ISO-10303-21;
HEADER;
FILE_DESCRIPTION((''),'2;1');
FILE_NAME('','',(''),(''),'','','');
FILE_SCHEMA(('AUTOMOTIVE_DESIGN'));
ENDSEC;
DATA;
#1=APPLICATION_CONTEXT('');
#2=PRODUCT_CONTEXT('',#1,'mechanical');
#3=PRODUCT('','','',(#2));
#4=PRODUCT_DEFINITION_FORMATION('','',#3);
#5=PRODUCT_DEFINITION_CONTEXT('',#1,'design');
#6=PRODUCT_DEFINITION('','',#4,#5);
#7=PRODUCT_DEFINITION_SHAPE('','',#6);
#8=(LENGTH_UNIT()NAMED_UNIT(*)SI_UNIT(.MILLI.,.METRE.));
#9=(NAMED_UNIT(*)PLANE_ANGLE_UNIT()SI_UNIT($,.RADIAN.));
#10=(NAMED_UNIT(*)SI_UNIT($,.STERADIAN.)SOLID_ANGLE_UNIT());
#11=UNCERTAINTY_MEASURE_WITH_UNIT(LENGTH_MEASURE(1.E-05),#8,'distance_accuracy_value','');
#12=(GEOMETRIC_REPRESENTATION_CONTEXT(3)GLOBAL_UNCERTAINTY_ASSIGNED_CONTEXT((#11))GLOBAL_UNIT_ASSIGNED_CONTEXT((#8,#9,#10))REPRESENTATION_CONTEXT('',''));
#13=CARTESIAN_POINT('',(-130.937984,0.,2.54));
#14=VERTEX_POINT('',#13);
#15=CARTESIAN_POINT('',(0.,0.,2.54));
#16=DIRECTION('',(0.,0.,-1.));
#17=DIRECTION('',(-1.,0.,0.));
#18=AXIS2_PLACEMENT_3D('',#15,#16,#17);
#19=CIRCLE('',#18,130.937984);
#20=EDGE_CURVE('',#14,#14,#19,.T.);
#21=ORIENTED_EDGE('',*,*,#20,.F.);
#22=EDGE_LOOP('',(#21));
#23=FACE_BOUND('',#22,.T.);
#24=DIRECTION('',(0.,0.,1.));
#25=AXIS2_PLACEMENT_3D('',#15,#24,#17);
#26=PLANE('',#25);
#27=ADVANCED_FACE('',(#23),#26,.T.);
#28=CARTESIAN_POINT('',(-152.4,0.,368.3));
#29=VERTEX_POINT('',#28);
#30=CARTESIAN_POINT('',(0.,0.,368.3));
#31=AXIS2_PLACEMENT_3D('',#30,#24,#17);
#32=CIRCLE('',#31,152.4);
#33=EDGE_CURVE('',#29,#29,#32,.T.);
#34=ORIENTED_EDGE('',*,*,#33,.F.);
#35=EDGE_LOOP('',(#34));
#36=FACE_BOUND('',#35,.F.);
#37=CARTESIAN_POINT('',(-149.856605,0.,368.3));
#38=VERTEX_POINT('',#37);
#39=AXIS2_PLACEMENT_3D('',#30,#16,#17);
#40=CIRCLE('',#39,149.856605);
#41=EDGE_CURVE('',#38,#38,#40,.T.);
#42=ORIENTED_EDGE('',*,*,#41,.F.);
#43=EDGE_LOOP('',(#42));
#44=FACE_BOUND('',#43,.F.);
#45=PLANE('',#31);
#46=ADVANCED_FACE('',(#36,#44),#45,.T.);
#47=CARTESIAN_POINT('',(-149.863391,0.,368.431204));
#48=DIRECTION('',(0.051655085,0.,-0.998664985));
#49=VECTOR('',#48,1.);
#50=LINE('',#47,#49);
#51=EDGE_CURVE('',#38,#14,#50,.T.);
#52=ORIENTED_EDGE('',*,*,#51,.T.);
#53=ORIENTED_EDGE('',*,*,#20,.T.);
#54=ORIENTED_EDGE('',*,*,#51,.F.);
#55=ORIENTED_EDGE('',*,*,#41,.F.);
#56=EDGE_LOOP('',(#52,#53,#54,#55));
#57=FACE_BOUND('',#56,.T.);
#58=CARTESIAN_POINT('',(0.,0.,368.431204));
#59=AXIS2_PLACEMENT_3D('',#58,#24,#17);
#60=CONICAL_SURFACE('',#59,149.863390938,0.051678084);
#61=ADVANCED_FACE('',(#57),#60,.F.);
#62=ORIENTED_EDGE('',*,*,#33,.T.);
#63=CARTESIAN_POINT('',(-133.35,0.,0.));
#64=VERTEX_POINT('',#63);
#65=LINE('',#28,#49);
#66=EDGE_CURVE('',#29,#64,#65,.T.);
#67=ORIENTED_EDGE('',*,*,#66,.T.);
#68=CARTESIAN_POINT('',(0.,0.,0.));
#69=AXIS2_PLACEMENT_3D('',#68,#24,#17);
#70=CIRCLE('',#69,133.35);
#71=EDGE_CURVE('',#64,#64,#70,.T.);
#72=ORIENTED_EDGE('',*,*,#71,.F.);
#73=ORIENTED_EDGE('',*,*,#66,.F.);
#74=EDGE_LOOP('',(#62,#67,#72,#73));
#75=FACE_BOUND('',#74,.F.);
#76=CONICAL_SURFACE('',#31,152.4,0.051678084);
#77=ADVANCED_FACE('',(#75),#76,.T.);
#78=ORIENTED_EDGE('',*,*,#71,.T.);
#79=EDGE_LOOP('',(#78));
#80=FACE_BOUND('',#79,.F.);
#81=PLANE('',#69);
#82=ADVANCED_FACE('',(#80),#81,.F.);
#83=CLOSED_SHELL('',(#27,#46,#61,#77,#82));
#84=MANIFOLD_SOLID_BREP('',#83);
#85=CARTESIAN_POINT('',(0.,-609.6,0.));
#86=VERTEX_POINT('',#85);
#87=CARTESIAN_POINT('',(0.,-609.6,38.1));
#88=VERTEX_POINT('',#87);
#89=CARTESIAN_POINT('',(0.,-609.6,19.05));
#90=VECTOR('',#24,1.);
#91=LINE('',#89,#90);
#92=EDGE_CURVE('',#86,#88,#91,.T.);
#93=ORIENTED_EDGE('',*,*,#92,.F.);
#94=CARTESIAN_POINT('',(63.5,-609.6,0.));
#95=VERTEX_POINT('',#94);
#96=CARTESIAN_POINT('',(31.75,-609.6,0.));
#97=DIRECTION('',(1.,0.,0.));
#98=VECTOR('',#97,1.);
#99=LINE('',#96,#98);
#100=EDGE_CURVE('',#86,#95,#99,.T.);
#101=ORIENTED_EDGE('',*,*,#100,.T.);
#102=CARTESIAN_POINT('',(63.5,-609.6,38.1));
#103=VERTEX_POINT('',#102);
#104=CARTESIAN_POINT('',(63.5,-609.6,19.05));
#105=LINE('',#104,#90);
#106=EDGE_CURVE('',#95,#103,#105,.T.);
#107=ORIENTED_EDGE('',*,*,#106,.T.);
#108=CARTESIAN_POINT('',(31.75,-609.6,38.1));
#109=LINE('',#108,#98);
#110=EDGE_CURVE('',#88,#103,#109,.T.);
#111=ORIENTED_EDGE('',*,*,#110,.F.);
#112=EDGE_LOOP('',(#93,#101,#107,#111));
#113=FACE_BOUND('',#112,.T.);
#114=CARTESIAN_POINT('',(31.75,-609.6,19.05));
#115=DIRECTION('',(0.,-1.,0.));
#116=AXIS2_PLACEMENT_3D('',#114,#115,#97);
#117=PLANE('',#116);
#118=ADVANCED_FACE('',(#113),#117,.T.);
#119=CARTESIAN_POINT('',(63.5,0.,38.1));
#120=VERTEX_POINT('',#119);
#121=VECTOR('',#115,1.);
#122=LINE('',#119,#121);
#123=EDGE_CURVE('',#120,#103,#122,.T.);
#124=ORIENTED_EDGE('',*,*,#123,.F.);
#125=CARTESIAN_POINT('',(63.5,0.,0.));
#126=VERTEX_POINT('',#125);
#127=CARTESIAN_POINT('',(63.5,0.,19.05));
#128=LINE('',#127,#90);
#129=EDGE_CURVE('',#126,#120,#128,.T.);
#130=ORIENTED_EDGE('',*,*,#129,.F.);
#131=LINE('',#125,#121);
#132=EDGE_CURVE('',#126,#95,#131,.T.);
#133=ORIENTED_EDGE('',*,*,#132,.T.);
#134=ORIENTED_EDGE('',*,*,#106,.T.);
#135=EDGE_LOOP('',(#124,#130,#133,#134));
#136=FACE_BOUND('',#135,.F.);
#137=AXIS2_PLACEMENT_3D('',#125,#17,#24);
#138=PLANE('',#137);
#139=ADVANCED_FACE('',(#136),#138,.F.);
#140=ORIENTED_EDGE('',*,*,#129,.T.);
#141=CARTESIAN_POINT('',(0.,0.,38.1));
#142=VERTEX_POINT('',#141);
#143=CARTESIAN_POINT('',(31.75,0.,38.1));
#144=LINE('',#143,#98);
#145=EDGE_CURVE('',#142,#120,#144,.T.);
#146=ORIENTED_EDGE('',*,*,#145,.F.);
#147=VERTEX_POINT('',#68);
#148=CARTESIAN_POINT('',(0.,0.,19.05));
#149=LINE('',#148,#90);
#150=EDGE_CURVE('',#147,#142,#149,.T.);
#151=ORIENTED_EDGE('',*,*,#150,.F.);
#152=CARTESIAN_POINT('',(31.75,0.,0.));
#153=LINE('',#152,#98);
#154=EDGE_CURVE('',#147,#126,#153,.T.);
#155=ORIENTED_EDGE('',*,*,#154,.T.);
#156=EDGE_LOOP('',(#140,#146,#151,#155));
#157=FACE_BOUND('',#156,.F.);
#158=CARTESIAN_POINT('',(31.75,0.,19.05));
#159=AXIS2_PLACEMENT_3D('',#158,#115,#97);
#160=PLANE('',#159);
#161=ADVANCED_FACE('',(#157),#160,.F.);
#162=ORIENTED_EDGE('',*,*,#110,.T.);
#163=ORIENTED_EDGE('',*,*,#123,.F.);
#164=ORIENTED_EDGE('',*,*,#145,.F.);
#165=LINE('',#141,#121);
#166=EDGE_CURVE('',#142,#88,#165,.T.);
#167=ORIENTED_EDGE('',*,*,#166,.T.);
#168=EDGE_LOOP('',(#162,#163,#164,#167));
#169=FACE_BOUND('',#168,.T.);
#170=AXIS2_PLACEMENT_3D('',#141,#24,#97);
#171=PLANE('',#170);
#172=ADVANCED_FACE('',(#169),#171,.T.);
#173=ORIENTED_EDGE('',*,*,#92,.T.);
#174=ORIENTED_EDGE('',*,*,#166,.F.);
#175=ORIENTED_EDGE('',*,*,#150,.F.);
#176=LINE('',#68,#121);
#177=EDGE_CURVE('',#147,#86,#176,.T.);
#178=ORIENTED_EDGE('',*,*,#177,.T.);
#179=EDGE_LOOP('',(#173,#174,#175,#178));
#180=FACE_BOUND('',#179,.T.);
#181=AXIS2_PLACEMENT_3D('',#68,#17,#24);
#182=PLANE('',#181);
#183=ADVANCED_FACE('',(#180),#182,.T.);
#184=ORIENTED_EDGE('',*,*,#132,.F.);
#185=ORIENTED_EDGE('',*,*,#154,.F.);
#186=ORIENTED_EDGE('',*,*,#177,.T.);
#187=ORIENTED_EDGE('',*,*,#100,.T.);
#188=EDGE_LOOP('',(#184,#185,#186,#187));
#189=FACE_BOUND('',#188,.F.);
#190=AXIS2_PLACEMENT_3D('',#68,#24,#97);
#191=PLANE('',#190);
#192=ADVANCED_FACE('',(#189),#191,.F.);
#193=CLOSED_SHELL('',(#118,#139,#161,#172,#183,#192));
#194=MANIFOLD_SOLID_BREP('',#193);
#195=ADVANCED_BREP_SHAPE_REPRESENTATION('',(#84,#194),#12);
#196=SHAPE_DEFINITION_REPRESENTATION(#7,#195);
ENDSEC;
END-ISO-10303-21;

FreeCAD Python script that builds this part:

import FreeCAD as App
import Part
import Sketcher
from FreeCAD import Vector
Q = App.Units.Quantity


def faces_at(feature, points):
    """Names of the faces that lie closest to the given points."""
    faces = feature.Shape.Faces
    near = lambda p: min(range(len(faces)), key=lambda i: faces[i].distToShape(Part.Vertex(*p))[0])
    return sorted({f"Face{near(p) + 1}" for p in points})


def add_polygon(sketch, points):
    """Adds a closed chain of lines whose ends are joined by coincident constraints."""
    first, n = sketch.GeometryCount, len(points)
    for a, b in zip(points, points[1:] + points[:1]):
        sketch.addGeometry(Part.LineSegment(App.Vector(*a, 0), App.Vector(*b, 0)), False)
    for i in range(n):
        sketch.addConstraint(Sketcher.Constraint("Coincident", first + i, 2, first + (i + 1) % n, 1))

doc = App.newDocument("Part")
body = doc.addObject("PartDesign::Body", "Body")

sketch1 = body.newObject("Sketcher::SketchObject", "Sketch")
sketch1.AttachmentSupport = (doc.getObject("XZ_Plane"), [""])
sketch1.MapMode = "FlatFace"
add_polygon(sketch1, [(-133, 0), (0, 0), (0, 368), (-152, 368)])
sketch1.addConstraint(Sketcher.Constraint("Horizontal", 0))
sketch1.addConstraint(Sketcher.Constraint("Vertical", 1))
sketch1.addConstraint(Sketcher.Constraint("Horizontal", 2))
sketch1.addConstraint(Sketcher.Constraint("Coincident", 0, 2, -1, 1))
sketch1.addConstraint(Sketcher.Constraint("DistanceX", 2, 2, 2, 1, Q("6 in")))
sketch1.addConstraint(Sketcher.Constraint("DistanceY", 1, 1, 1, 2, Q("14.5 in")))
sketch1.addConstraint(Sketcher.Constraint("DistanceX", 0, 1, 0, 2, Q("5.25 in")))
revolution = body.newObject("PartDesign::Revolution", "Revolution")
revolution.Profile = sketch1
revolution.ReferenceAxis = (sketch1, ["V_Axis"])
revolution.Angle = 360
doc.recompute()

thickness = body.newObject("PartDesign::Thickness", "Thickness")
thickness.Base = (revolution, faces_at(revolution, [(0, 0, 368.3)]))
thickness.Value = Q("0.1 in")
thickness.Reversed = True
thickness.Join = "Arc"
body2 = doc.addObject("PartDesign::Body", "Body001")

sketch2 = body2.newObject("Sketcher::SketchObject", "Sketch001")
sketch2.AttachmentSupport = (doc.getObject("XZ_Plane001"), [""])
sketch2.MapMode = "FlatFace"
add_polygon(sketch2, [(0, 38), (0, 0), (64, 0), (64, 38)])
sketch2.addConstraint(Sketcher.Constraint("Vertical", 0))
sketch2.addConstraint(Sketcher.Constraint("Horizontal", 1))
sketch2.addConstraint(Sketcher.Constraint("Vertical", 2))
sketch2.addConstraint(Sketcher.Constraint("Horizontal", 3))
sketch2.addConstraint(Sketcher.Constraint("Coincident", 0, 2, -1, 1))
sketch2.addConstraint(Sketcher.Constraint("DistanceX", 1, 1, 1, 2, Q("2.5 in")))
sketch2.addConstraint(Sketcher.Constraint("DistanceY", 0, 2, 0, 1, Q("1.5 in")))
pad1 = body2.newObject("PartDesign::Pad", "Pad")
pad1.Profile = sketch2
pad1.Length = Q("24 in")

doc.recompute()
